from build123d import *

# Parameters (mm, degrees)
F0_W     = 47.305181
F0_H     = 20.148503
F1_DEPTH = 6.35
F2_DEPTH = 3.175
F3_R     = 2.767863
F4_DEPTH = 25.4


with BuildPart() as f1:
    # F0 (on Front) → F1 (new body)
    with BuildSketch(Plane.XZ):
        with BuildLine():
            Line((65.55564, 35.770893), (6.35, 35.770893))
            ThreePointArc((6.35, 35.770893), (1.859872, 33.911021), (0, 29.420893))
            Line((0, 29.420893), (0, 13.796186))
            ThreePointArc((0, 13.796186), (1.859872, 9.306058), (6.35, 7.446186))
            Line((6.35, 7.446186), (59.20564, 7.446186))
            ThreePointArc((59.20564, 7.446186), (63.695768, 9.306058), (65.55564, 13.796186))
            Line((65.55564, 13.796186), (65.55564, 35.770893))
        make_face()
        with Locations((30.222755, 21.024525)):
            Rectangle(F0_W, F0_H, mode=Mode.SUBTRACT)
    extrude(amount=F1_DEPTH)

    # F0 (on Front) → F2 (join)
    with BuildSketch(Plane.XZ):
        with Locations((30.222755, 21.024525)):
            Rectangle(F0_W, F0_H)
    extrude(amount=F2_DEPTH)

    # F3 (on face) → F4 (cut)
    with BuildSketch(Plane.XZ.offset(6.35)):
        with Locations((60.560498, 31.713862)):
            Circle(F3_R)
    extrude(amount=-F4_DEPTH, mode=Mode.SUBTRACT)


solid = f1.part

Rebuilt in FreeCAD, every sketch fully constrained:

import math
import FreeCAD as App
import Part
import Sketcher
Q = App.Units.Quantity

doc = App.newDocument("Part")
body = doc.addObject("PartDesign::Body", "Body")

# Sketch on XZ plane
sketch1 = body.newObject("Sketcher::SketchObject", "Sketch")
sketch1.AttachmentSupport = (doc.getObject("XZ_Plane"), [""])
sketch1.MapMode = "FlatFace"
sketch1.addGeometry(Part.LineSegment(App.Vector(65.55564, 35.770893, 0), App.Vector(6.35, 35.770893, 0)), False)
sketch1.addGeometry(Part.ArcOfCircle(Part.Circle(App.Vector(6.35, 29.420893, 0), App.Vector(0, 0, 1), 6.35), math.radians(90.000002), math.radians(179.999998)), False)
sketch1.addGeometry(Part.LineSegment(App.Vector(0, 29.420893, 0), App.Vector(0, 13.796186, 0)), False)
sketch1.addGeometry(Part.ArcOfCircle(Part.Circle(App.Vector(6.35, 13.796186, 0), App.Vector(0, 0, 1), 6.35), math.radians(-179.999998), math.radians(-90.000002)), False)
sketch1.addGeometry(Part.LineSegment(App.Vector(6.35, 7.446186, 0), App.Vector(59.20564, 7.446186, 0)), False)
sketch1.addGeometry(Part.ArcOfCircle(Part.Circle(App.Vector(59.20564, 13.796186, 0), App.Vector(0, 0, 1), 6.35), math.radians(-89.999998), math.radians(-0.000002)), False)
sketch1.addGeometry(Part.LineSegment(App.Vector(65.55564, 13.796186, 0), App.Vector(65.55564, 35.770893, 0)), False)
sketch1.addGeometry(Part.LineSegment(App.Vector(53.875346, 10.950273, 0), App.Vector(6.570164, 10.950273, 0)), False)
sketch1.addGeometry(Part.LineSegment(App.Vector(6.570164, 10.950273, 0), App.Vector(6.570164, 31.098776, 0)), False)
sketch1.addGeometry(Part.LineSegment(App.Vector(6.570164, 31.098776, 0), App.Vector(53.875346, 31.098776, 0)), False)
sketch1.addGeometry(Part.LineSegment(App.Vector(53.875346, 31.098776, 0), App.Vector(53.875346, 10.950273, 0)), False)
sketch1.addConstraint(Sketcher.Constraint("Tangent", 0, 2, 1, 1))
sketch1.addConstraint(Sketcher.Constraint("Tangent", 1, 2, 2, 1))
sketch1.addConstraint(Sketcher.Constraint("Tangent", 2, 2, 3, 1))
sketch1.addConstraint(Sketcher.Constraint("Tangent", 3, 2, 4, 1))
sketch1.addConstraint(Sketcher.Constraint("Tangent", 4, 2, 5, 1))
sketch1.addConstraint(Sketcher.Constraint("Tangent", 5, 2, 6, 1))
sketch1.addConstraint(Sketcher.Constraint("Coincident", 6, 2, 0, 1))
sketch1.addConstraint(Sketcher.Constraint("Coincident", 7, 2, 8, 1))
sketch1.addConstraint(Sketcher.Constraint("Coincident", 8, 2, 9, 1))
sketch1.addConstraint(Sketcher.Constraint("Coincident", 9, 2, 10, 1))
sketch1.addConstraint(Sketcher.Constraint("Coincident", 10, 2, 7, 1))
sketch1.addConstraint(Sketcher.Constraint("Horizontal", 0))
sketch1.addConstraint(Sketcher.Constraint("Vertical", 2))
sketch1.addConstraint(Sketcher.Constraint("Horizontal", 4))
sketch1.addConstraint(Sketcher.Constraint("Vertical", 6))
sketch1.addConstraint(Sketcher.Constraint("Horizontal", 7))
sketch1.addConstraint(Sketcher.Constraint("Vertical", 8))
sketch1.addConstraint(Sketcher.Constraint("Horizontal", 9))
sketch1.addConstraint(Sketcher.Constraint("Vertical", 10))
sketch1.addConstraint(Sketcher.Constraint("Equal", 1, 3))
sketch1.addConstraint(Sketcher.Constraint("Equal", 3, 5))
sketch1.addConstraint(Sketcher.Constraint("PointOnObject", 1, 2, -2))
sketch1.addConstraint(Sketcher.Constraint("Radius", 1, Q("0.25 in")))
sketch1.addConstraint(Sketcher.Constraint("DistanceX", 0, 2, 0, 1, 59.20564))
sketch1.addConstraint(Sketcher.Constraint("DistanceX", 7, 2, 7, 1, 47.305181))
sketch1.addConstraint(Sketcher.Constraint("DistanceY", 2, 2, 2, 1, 15.624707))
sketch1.addConstraint(Sketcher.Constraint("DistanceY", 8, 1, 8, 2, 20.148503))
sketch1.addConstraint(Sketcher.Constraint("DistanceY", 7, 2, 1, 3, 18.470619))
sketch1.addConstraint(Sketcher.Constraint("DistanceY", -1, 1, 1, 3, 29.420893))
sketch1.addConstraint(Sketcher.Constraint("DistanceX", -1, 1, 7, 2, 6.570164))
pad1 = body.newObject("PartDesign::Pad", "Pad")
pad1.Profile = sketch1
pad1.Length = Q("0.25 in")

# Sketch on XZ plane
sketch2 = body.newObject("Sketcher::SketchObject", "Sketch001")
sketch2.AttachmentSupport = (doc.getObject("XZ_Plane"), [""])
sketch2.MapMode = "FlatFace"
sketch2.addGeometry(Part.LineSegment(App.Vector(6.570164, 31.098776, 0), App.Vector(6.570164, 10.950273, 0)), False)
sketch2.addGeometry(Part.LineSegment(App.Vector(6.570164, 10.950273, 0), App.Vector(53.875346, 10.950273, 0)), False)
sketch2.addGeometry(Part.LineSegment(App.Vector(53.875346, 10.950273, 0), App.Vector(53.875346, 31.098776, 0)), False)
sketch2.addGeometry(Part.LineSegment(App.Vector(53.875346, 31.098776, 0), App.Vector(6.570164, 31.098776, 0)), False)
sketch2.addConstraint(Sketcher.Constraint("Coincident", 0, 2, 1, 1))
sketch2.addConstraint(Sketcher.Constraint("Coincident", 1, 2, 2, 1))
sketch2.addConstraint(Sketcher.Constraint("Coincident", 2, 2, 3, 1))
sketch2.addConstraint(Sketcher.Constraint("Coincident", 3, 2, 0, 1))
sketch2.addConstraint(Sketcher.Constraint("Vertical", 0))
sketch2.addConstraint(Sketcher.Constraint("Horizontal", 1))
sketch2.addConstraint(Sketcher.Constraint("Vertical", 2))
sketch2.addConstraint(Sketcher.Constraint("Horizontal", 3))
sketch2.addConstraint(Sketcher.Constraint("DistanceX", 1, 1, 1, 2, 47.305181))
sketch2.addConstraint(Sketcher.Constraint("DistanceY", 0, 2, 0, 1, 20.148503))
sketch2.addConstraint(Sketcher.Constraint("DistanceX", -1, 1, 0, 2, 6.570164))
sketch2.addConstraint(Sketcher.Constraint("DistanceY", -1, 1, 0, 2, 10.950273))
pad2 = body.newObject("PartDesign::Pad", "Pad001")
pad2.Profile = sketch2
pad2.Length = Q("0.125 in")

# Sketch on XZ plane
sketch3 = body.newObject("Sketcher::SketchObject", "Sketch002")
sketch3.AttachmentSupport = (doc.getObject("XZ_Plane"), [""])
sketch3.MapMode = "FlatFace"
sketch3.AttachmentOffset = App.Placement(App.Vector(0, 0, 0.25 * 25.4), App.Rotation())
sketch3.addGeometry(Part.Circle(App.Vector(60.560498, 31.713862, 0), App.Vector(0, 0, 1), 2.767863), False)
sketch3.addConstraint(Sketcher.Constraint("Diameter", 0, 5.535726))
sketch3.addConstraint(Sketcher.Constraint("DistanceX", -1, 1, 0, 3, 60.560498))
sketch3.addConstraint(Sketcher.Constraint("DistanceY", -1, 1, 0, 3, 31.713862))
pocket1 = body.newObject("PartDesign::Pocket", "Pocket")
pocket1.Profile = sketch3
pocket1.Length = Q("1 in")

doc.recompute()
